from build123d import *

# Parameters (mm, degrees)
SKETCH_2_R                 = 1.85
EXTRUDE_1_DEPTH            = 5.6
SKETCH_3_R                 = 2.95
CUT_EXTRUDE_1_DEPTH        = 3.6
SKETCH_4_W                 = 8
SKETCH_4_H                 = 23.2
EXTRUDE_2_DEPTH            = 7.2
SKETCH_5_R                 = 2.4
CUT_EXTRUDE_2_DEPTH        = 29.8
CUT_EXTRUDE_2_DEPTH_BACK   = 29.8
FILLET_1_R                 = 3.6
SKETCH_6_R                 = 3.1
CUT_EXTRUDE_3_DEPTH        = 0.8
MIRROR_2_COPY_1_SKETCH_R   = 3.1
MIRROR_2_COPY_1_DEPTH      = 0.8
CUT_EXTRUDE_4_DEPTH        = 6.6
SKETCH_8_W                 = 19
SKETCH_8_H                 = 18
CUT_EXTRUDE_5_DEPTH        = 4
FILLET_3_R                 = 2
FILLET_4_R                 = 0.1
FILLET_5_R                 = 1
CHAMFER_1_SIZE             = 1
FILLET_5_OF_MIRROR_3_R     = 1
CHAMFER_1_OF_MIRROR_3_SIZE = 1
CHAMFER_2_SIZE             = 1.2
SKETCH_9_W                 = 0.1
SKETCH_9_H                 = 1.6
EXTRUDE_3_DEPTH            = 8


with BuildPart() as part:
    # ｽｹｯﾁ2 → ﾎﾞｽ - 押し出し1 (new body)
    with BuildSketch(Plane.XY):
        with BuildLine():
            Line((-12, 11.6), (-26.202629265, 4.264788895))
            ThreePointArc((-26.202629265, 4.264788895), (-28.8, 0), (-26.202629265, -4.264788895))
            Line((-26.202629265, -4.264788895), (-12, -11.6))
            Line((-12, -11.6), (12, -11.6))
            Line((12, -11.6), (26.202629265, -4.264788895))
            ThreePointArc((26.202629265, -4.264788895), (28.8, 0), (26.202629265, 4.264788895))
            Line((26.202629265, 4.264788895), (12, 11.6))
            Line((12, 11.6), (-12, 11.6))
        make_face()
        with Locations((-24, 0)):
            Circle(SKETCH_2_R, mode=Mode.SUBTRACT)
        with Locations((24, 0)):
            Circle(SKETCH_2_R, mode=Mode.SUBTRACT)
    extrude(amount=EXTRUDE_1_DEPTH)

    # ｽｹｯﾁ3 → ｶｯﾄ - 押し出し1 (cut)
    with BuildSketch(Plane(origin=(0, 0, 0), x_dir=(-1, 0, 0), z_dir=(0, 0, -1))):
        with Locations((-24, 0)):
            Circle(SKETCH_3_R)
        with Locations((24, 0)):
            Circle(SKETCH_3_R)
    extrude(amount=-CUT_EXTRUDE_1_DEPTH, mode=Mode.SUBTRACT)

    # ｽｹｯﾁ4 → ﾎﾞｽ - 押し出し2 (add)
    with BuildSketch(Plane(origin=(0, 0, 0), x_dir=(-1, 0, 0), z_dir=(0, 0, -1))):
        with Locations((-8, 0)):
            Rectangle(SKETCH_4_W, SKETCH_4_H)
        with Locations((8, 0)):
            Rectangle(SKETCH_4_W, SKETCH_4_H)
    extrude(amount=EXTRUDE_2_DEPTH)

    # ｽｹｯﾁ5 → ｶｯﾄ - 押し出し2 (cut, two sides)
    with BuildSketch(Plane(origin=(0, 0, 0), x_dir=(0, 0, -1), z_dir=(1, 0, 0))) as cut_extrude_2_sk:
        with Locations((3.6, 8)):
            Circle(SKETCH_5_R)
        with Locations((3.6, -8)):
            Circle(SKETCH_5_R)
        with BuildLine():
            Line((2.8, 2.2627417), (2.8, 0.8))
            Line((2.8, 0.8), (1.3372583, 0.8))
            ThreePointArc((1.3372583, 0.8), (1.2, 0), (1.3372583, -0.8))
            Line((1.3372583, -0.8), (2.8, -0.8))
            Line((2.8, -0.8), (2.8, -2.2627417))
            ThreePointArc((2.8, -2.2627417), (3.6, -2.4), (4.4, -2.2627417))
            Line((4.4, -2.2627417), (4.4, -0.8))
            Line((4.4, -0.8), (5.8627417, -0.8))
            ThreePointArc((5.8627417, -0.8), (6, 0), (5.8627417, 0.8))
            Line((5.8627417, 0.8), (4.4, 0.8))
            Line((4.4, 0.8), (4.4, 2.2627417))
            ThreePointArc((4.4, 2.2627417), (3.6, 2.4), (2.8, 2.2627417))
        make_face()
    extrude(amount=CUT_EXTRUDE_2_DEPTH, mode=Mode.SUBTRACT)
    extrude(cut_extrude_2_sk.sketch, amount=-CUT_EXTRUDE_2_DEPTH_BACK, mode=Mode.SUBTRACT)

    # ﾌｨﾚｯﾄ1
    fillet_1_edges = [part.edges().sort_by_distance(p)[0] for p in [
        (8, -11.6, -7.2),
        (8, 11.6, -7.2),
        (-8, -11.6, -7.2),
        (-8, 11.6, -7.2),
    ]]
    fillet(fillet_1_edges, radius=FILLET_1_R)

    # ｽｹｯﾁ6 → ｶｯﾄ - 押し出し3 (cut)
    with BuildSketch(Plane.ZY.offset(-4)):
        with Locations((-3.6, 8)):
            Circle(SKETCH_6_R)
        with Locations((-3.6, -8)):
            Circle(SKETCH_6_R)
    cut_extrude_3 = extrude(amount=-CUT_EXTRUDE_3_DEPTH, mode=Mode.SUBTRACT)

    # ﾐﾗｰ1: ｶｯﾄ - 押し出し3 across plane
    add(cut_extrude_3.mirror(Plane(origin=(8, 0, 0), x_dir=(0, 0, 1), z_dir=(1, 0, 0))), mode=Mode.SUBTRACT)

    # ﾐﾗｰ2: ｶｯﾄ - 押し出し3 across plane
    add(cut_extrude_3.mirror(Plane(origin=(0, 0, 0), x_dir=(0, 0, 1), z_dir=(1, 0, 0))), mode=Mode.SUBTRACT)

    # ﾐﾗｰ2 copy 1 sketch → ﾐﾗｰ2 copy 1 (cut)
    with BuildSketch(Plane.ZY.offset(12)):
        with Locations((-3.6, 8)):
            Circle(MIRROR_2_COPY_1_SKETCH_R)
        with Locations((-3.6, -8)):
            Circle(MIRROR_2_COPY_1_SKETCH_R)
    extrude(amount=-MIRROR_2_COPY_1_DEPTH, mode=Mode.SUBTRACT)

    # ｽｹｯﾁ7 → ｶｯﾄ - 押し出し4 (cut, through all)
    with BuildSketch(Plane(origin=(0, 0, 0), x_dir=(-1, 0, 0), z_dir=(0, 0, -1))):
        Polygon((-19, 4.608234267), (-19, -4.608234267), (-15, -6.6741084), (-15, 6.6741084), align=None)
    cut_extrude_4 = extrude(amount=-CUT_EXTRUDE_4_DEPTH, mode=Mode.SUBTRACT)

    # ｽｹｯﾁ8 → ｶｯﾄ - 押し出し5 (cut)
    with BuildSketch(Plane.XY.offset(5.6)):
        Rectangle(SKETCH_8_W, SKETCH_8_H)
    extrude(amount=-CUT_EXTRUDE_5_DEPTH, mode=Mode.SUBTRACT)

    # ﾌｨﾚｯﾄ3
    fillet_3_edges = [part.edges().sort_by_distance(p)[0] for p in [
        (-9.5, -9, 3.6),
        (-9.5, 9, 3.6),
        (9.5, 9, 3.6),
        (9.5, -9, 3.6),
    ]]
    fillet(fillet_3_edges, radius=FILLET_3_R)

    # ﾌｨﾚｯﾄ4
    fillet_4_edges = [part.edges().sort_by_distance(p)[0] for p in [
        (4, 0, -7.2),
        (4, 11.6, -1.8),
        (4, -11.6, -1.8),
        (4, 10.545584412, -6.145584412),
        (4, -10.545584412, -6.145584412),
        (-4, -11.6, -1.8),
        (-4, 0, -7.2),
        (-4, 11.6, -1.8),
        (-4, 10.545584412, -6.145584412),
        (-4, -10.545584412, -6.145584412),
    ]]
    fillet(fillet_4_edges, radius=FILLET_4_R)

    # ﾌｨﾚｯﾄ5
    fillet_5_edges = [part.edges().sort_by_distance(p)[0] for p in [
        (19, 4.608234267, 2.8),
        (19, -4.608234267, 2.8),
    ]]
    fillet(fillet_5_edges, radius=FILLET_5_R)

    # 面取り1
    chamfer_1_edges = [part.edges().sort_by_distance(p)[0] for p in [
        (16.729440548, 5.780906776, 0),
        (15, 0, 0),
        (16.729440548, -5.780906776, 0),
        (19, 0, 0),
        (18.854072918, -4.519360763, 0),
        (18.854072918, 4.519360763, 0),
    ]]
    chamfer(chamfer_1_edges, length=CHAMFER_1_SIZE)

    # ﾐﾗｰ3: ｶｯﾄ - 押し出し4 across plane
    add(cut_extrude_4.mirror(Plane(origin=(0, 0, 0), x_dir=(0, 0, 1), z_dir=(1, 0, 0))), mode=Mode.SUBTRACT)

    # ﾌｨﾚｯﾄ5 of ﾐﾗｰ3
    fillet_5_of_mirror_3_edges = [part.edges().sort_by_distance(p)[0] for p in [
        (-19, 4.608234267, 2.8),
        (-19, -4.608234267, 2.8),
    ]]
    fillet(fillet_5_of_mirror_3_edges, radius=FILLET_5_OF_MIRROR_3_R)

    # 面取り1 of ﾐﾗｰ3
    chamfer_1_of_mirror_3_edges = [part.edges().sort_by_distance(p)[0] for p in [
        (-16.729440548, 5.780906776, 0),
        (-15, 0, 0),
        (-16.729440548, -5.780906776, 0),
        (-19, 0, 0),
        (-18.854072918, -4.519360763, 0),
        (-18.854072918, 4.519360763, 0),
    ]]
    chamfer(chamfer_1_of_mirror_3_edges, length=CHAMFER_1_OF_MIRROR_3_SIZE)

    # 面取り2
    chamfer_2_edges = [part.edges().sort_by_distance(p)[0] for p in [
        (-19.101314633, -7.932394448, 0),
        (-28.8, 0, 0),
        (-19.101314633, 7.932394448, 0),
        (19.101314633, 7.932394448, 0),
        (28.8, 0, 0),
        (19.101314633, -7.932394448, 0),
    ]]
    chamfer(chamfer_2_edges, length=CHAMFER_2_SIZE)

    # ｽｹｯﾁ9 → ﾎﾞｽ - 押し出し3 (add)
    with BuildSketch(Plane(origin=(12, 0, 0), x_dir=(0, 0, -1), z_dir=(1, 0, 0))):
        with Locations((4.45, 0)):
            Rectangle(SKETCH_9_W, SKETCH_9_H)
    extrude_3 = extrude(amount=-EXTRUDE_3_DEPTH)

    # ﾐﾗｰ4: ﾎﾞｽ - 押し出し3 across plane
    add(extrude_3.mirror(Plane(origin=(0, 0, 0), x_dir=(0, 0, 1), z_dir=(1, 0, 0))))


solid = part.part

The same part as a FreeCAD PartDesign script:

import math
import FreeCAD as App
import Part
import Sketcher

V = App.Vector


def edges_at(feature, points):
    """Names of the edges that pass closest to the given points."""
    edges = feature.Shape.Edges
    near = lambda p: min(range(len(edges)), key=lambda i: edges[i].distToShape(Part.Vertex(*p))[0])
    return sorted({f"Edge{near(p) + 1}" for p in points})

doc = App.newDocument("Part")
body = doc.addObject("PartDesign::Body", "Body")

sketch1 = body.newObject("Sketcher::SketchObject", "Sketch")
sketch1.AttachmentSupport = (doc.getObject("XY_Plane"), [""])
sketch1.MapMode = "FlatFace"
sketch1.addGeometry([
    Part.LineSegment(V(-12, 11.6, 0), V(-26.2, 4.3, 0)),
    Part.ArcOfCircle(Part.Circle(V(-24, 0, 0), V(0, 0, 1), 4.8), math.radians(117), math.radians(243)),
    Part.LineSegment(V(-26.2, -4.3, 0), V(-12, -11.6, 0)),
    Part.LineSegment(V(-12, -11.6, 0), V(12, -11.6, 0)),
    Part.LineSegment(V(12, -11.6, 0), V(26.2, -4.3, 0)),
    Part.ArcOfCircle(Part.Circle(V(24, 0, 0), V(0, 0, 1), 4.8), math.radians(-63), math.radians(63)),
    Part.LineSegment(V(26.2, 4.3, 0), V(12, 11.6, 0)),
    Part.LineSegment(V(12, 11.6, 0), V(-12, 11.6, 0)),
    Part.Circle(V(-24, 0, 0), V(0, 0, 1), 1.9),
    Part.Circle(V(24, 0, 0), V(0, 0, 1), 1.9),
], False)
sketch1.addConstraint([
    Sketcher.Constraint("Tangent", 0, 2, 1, 1),
    Sketcher.Constraint("Tangent", 1, 2, 2, 1),
    Sketcher.Constraint("Coincident", 2, 2, 3, 1),
    Sketcher.Constraint("Coincident", 3, 2, 4, 1),
    Sketcher.Constraint("Tangent", 4, 2, 5, 1),
    Sketcher.Constraint("Tangent", 5, 2, 6, 1),
    Sketcher.Constraint("Coincident", 6, 2, 7, 1),
    Sketcher.Constraint("Coincident", 7, 2, 0, 1),
    Sketcher.Constraint("Horizontal", 3),
    Sketcher.Constraint("Horizontal", 7),
    Sketcher.Constraint("Coincident", 8, 3, 1, 3),
    Sketcher.Constraint("Coincident", 9, 3, 5, 3),
    Sketcher.Constraint("Equal", 1, 5),
    Sketcher.Constraint("Equal", 8, 9),
    Sketcher.Constraint("Symmetric", 1, 3, 5, 3, -1, 1),
    Sketcher.Constraint("Symmetric", 2, 2, 6, 2, -1, 1),
    Sketcher.Constraint("Symmetric", 1, 2, 4, 2, -2),
    Sketcher.Constraint("Parallel", 0, 4),
    Sketcher.Constraint("Diameter", 8, 3.7),
    Sketcher.Constraint("Radius", 1, 4.8),
    Sketcher.Constraint("DistanceX", 3, 1, 3, 2, 24.0),
    Sketcher.Constraint("DistanceX", 1, 3, -1, 1, 24.0),
    Sketcher.Constraint("DistanceY", 2, 2, -1, 1, 11.6),
])
pad1 = body.newObject("PartDesign::Pad", "Pad")
pad1.Profile = sketch1
pad1.Length = 5.6

sketch2 = body.newObject("Sketcher::SketchObject", "Sketch001")
sketch2.AttachmentSupport = (doc.getObject("XY_Plane"), [""])
sketch2.MapMode = "FlatFace"
sketch2.addGeometry([
    Part.Circle(V(24, 0, 0), V(0, 0, 1), 3),
    Part.Circle(V(-24, 0, 0), V(0, 0, 1), 3),
], False)
sketch2.addConstraint([
    Sketcher.Constraint("Equal", 0, 1),
    Sketcher.Constraint("Symmetric", 0, 3, 1, 3, -1, 1),
    Sketcher.Constraint("PointOnObject", 0, 3, -1),
    Sketcher.Constraint("Diameter", 0, 5.9),
    Sketcher.Constraint("DistanceX", -1, 1, 0, 3, 24.0),
])
pocket1 = body.newObject("PartDesign::Pocket", "Pocket")
pocket1.Profile = sketch2
pocket1.Length = 3.6
pocket1.Reversed = True

sketch3 = body.newObject("Sketcher::SketchObject", "Sketch002")
sketch3.AttachmentSupport = (doc.getObject("XY_Plane"), [""])
sketch3.MapMode = "FlatFace"
sketch3.addGeometry([
    Part.LineSegment(V(12, 12, 0), V(12, -12, 0)),
    Part.LineSegment(V(12, -12, 0), V(4, -12, 0)),
    Part.LineSegment(V(4, -12, 0), V(4, 12, 0)),
    Part.LineSegment(V(4, 12, 0), V(12, 12, 0)),
    Part.LineSegment(V(-4, 12, 0), V(-4, -12, 0)),
    Part.LineSegment(V(-4, -12, 0), V(-12, -12, 0)),
    Part.LineSegment(V(-12, -12, 0), V(-12, 12, 0)),
    Part.LineSegment(V(-12, 12, 0), V(-4, 12, 0)),
], False)
sketch3.addConstraint([
    Sketcher.Constraint("Coincident", 0, 2, 1, 1),
    Sketcher.Constraint("Coincident", 1, 2, 2, 1),
    Sketcher.Constraint("Coincident", 2, 2, 3, 1),
    Sketcher.Constraint("Coincident", 3, 2, 0, 1),
    Sketcher.Constraint("Coincident", 4, 2, 5, 1),
    Sketcher.Constraint("Coincident", 5, 2, 6, 1),
    Sketcher.Constraint("Coincident", 6, 2, 7, 1),
    Sketcher.Constraint("Coincident", 7, 2, 4, 1),
    Sketcher.Constraint("Vertical", 0),
    Sketcher.Constraint("Horizontal", 1),
    Sketcher.Constraint("Vertical", 2),
    Sketcher.Constraint("Horizontal", 3),
    Sketcher.Constraint("Vertical", 4),
    Sketcher.Constraint("Horizontal", 5),
    Sketcher.Constraint("Vertical", 6),
    Sketcher.Constraint("Horizontal", 7),
    Sketcher.Constraint("Symmetric", 2, 2, 4, 2, -1, 1),
    Sketcher.Constraint("Symmetric", 0, 2, 6, 2, -1, 1),
    Sketcher.Constraint("Horizontal", 1, 2, 4, 2),
    Sketcher.Constraint("DistanceX", 1, 2, 1, 1, 8.0),
    Sketcher.Constraint("DistanceY", 0, 2, 0, 1, 23.2),
    Sketcher.Constraint("DistanceX", -1, 1, 0, 2, 12.0),
])
pad2 = body.newObject("PartDesign::Pad", "Pad001")
pad2.Profile = sketch3
pad2.Length = 7.2
pad2.Reversed = True

sketch4 = body.newObject("Sketcher::SketchObject", "Sketch003")
sketch4.AttachmentSupport = (doc.getObject("YZ_Plane"), [""])
sketch4.MapMode = "FlatFace"
sketch4.addGeometry([
    Part.Circle(V(8, -3.6, 0), V(0, 0, 1), 2.4),
    Part.Circle(V(-8, -3.6, 0), V(0, 0, 1), 2.4),
    Part.LineSegment(V(2.3, -2.8, 0), V(0.8, -2.8, 0)),
    Part.LineSegment(V(0.8, -2.8, 0), V(0.8, -1.3, 0)),
    Part.ArcOfCircle(Part.Circle(V(0, -3.6, 0), V(0, 0, 1), 2.4), math.radians(71), math.radians(109)),
    Part.LineSegment(V(-0.8, -1.3, 0), V(-0.8, -2.8, 0)),
    Part.LineSegment(V(-0.8, -2.8, 0), V(-2.3, -2.8, 0)),
    Part.ArcOfCircle(Part.Circle(V(0, -3.6, 0), V(0, 0, 1), 2.4), math.radians(161), math.radians(199)),
    Part.LineSegment(V(-2.3, -4.4, 0), V(-0.8, -4.4, 0)),
    Part.LineSegment(V(-0.8, -4.4, 0), V(-0.8, -5.9, 0)),
    Part.ArcOfCircle(Part.Circle(V(0, -3.6, 0), V(0, 0, 1), 2.4), math.radians(-109), math.radians(-71)),
    Part.LineSegment(V(0.8, -5.9, 0), V(0.8, -4.4, 0)),
    Part.LineSegment(V(0.8, -4.4, 0), V(2.3, -4.4, 0)),
    Part.ArcOfCircle(Part.Circle(V(0, -3.6, 0), V(0, 0, 1), 2.4), math.radians(-19), math.radians(19)),
], False)
sketch4.addConstraint([
    Sketcher.Constraint("Coincident", 2, 2, 3, 1),
    Sketcher.Constraint("Coincident", 3, 2, 4, 1),
    Sketcher.Constraint("Coincident", 4, 2, 5, 1),
    Sketcher.Constraint("Coincident", 5, 2, 6, 1),
    Sketcher.Constraint("Coincident", 6, 2, 7, 1),
    Sketcher.Constraint("Coincident", 7, 2, 8, 1),
    Sketcher.Constraint("Coincident", 8, 2, 9, 1),
    Sketcher.Constraint("Coincident", 9, 2, 10, 1),
    Sketcher.Constraint("Coincident", 10, 2, 11, 1),
    Sketcher.Constraint("Coincident", 11, 2, 12, 1),
    Sketcher.Constraint("Coincident", 12, 2, 13, 1),
    Sketcher.Constraint("Coincident", 13, 2, 2, 1),
    Sketcher.Constraint("Horizontal", 2),
    Sketcher.Constraint("Vertical", 3),
    Sketcher.Constraint("Vertical", 5),
    Sketcher.Constraint("Horizontal", 6),
    Sketcher.Constraint("Horizontal", 8),
    Sketcher.Constraint("Vertical", 9),
    Sketcher.Constraint("Vertical", 11),
    Sketcher.Constraint("Horizontal", 12),
    Sketcher.Constraint("Coincident", 7, 3, 4, 3),
    Sketcher.Constraint("Coincident", 10, 3, 4, 3),
    Sketcher.Constraint("Coincident", 13, 3, 4, 3),
    Sketcher.Constraint("Equal", 0, 1),
    Sketcher.Constraint("Equal", 1, 4),
    Sketcher.Constraint("Equal", 4, 7),
    Sketcher.Constraint("Equal", 7, 10),
    Sketcher.Constraint("Equal", 10, 13),
    Sketcher.Constraint("Symmetric", 0, 3, 1, 3, -2),
    Sketcher.Constraint("Symmetric", 3, 2, 4, 2, -2),
    Sketcher.Constraint("Symmetric", 8, 2, 11, 2, -2),
    Sketcher.Constraint("Horizontal", 1, 3, 4, 3),
    Sketcher.Constraint("Horizontal", 2, 2, 5, 2),
    Sketcher.Constraint("Vertical", 6, 2, 7, 2),
    Sketcher.Constraint("Vertical", 5, 2, 8, 2),
    Sketcher.Constraint("Equal", 12, 3),
    Sketcher.Constraint("Diameter", 0, 4.8),
    Sketcher.Constraint("DistanceX", -1, 1, 0, 3, 8.0),
    Sketcher.Constraint("DistanceY", 0, 3, -1, 1, 3.6),
    Sketcher.Constraint("DistanceX", -1, 1, 2, 2, 0.8),
])
pocket2 = body.newObject("PartDesign::Pocket", "Pocket001")
pocket2.Profile = sketch4
pocket2.Type = "ThroughAll"
pocket2.Midplane = True
doc.recompute()

fillet = body.newObject("PartDesign::Fillet", "Fillet")
fillet.Base = (pocket2, edges_at(pocket2, [
    (8, -11.6, -7.2),
    (8, 11.6, -7.2),
    (-8, -11.6, -7.2),
    (-8, 11.6, -7.2),
]))
fillet.Radius = 3.6

sketch5 = body.newObject("Sketcher::SketchObject", "Sketch004")
sketch5.AttachmentSupport = (doc.getObject("YZ_Plane"), [""])
sketch5.MapMode = "FlatFace"
sketch5.AttachmentOffset = App.Placement(V(0, 0, 4), App.Rotation())
sketch5.addGeometry([
    Part.Circle(V(8, -3.6, 0), V(0, 0, 1), 3.1),
    Part.Circle(V(-8, -3.6, 0), V(0, 0, 1), 3.1),
], False)
sketch5.addConstraint([
    Sketcher.Constraint("Equal", 0, 1),
    Sketcher.Constraint("Symmetric", 0, 3, 1, 3, -2),
    Sketcher.Constraint("Diameter", 0, 6.2),
    Sketcher.Constraint("DistanceX", -1, 1, 0, 3, 8.0),
    Sketcher.Constraint("DistanceY", 0, 3, -1, 1, 3.6),
])
pocket3 = body.newObject("PartDesign::Pocket", "Pocket002")
pocket3.Profile = sketch5
pocket3.Length = 0.8
pocket3.Reversed = True
doc.recompute()

datumplane = body.newObject("PartDesign::Plane", "DatumPlane")
datumplane.AttachmentSupport = (doc.getObject("YZ_Plane"), [""])
datumplane.MapMode = "FlatFace"
datumplane.AttachmentOffset = App.Placement(V(0, 0, 8), App.Rotation())
mirrored = body.newObject("PartDesign::Mirrored", "Mirrored")
mirrored.Originals = [pocket3]
mirrored.MirrorPlane = (datumplane, [""])
body.Tip = mirrored
doc.recompute()

mirrored2 = body.newObject("PartDesign::Mirrored", "Mirrored001")
mirrored2.Originals = [pocket3]
mirrored2.MirrorPlane = (doc.getObject("YZ_Plane"), [""])
body.Tip = mirrored2

sketch6 = body.newObject("Sketcher::SketchObject", "Sketch005")
sketch6.AttachmentSupport = (doc.getObject("YZ_Plane"), [""])
sketch6.MapMode = "FlatFace"
sketch6.AttachmentOffset = App.Placement(V(0, 0, -12), App.Rotation())
sketch6.addGeometry([
    Part.Circle(V(8, -3.6, 0), V(0, 0, 1), 3.1),
    Part.Circle(V(-8, -3.6, 0), V(0, 0, 1), 3.1),
], False)
sketch6.addConstraint([
    Sketcher.Constraint("Equal", 0, 1),
    Sketcher.Constraint("Symmetric", 0, 3, 1, 3, -2),
    Sketcher.Constraint("Diameter", 0, 6.2),
    Sketcher.Constraint("DistanceX", -1, 1, 0, 3, 8.0),
    Sketcher.Constraint("DistanceY", 0, 3, -1, 1, 3.6),
])
pocket4 = body.newObject("PartDesign::Pocket", "Pocket003")
pocket4.Profile = sketch6
pocket4.Length = 0.8
pocket4.Reversed = True

sketch7 = body.newObject("Sketcher::SketchObject", "Sketch006")
sketch7.AttachmentSupport = (doc.getObject("XY_Plane"), [""])
sketch7.MapMode = "FlatFace"
sketch7.addGeometry([
    Part.LineSegment(V(19, 4.6, 0), V(19, -4.6, 0)),
    Part.LineSegment(V(19, -4.6, 0), V(15, -6.7, 0)),
    Part.LineSegment(V(15, -6.7, 0), V(15, 6.7, 0)),
    Part.LineSegment(V(15, 6.7, 0), V(19, 4.6, 0)),
], False)
sketch7.addConstraint([
    Sketcher.Constraint("Coincident", 0, 2, 1, 1),
    Sketcher.Constraint("Coincident", 1, 2, 2, 1),
    Sketcher.Constraint("Coincident", 2, 2, 3, 1),
    Sketcher.Constraint("Coincident", 3, 2, 0, 1),
    Sketcher.Constraint("Vertical", 0),
    Sketcher.Constraint("Vertical", 2),
    Sketcher.Constraint("Equal", 1, 3),
    Sketcher.Constraint("DistanceX", -1, 1, 0, 2, 19.0),
    Sketcher.Constraint("DistanceX", -1, 1, 1, 2, 15.0),
    Sketcher.Constraint("DistanceY", 0, 2, 0, 1, 9.216469),
    Sketcher.Constraint("Distance", 1, 4.501981),
    Sketcher.Constraint("DistanceY", 1, 2, -1, 1, 6.674108),
])
pocket5 = body.newObject("PartDesign::Pocket", "Pocket004")
pocket5.Profile = sketch7
pocket5.Type = "ThroughAll"
pocket5.Reversed = True

sketch8 = body.newObject("Sketcher::SketchObject", "Sketch007")
sketch8.AttachmentSupport = (doc.getObject("XY_Plane"), [""])
sketch8.MapMode = "FlatFace"
sketch8.AttachmentOffset = App.Placement(V(0, 0, 5.6), App.Rotation())
sketch8.addGeometry([
    Part.LineSegment(V(-10, 9, 0), V(-10, -9, 0)),
    Part.LineSegment(V(-10, -9, 0), V(10, -9, 0)),
    Part.LineSegment(V(10, -9, 0), V(10, 9, 0)),
    Part.LineSegment(V(10, 9, 0), V(-10, 9, 0)),
], False)
sketch8.addConstraint([
    Sketcher.Constraint("Coincident", 0, 2, 1, 1),
    Sketcher.Constraint("Coincident", 1, 2, 2, 1),
    Sketcher.Constraint("Coincident", 2, 2, 3, 1),
    Sketcher.Constraint("Coincident", 3, 2, 0, 1),
    Sketcher.Constraint("Vertical", 0),
    Sketcher.Constraint("Horizontal", 1),
    Sketcher.Constraint("Vertical", 2),
    Sketcher.Constraint("Horizontal", 3),
    Sketcher.Constraint("Symmetric", 0, 2, 2, 2, -1, 1),
    Sketcher.Constraint("DistanceX", 1, 1, 1, 2, 19.0),
    Sketcher.Constraint("DistanceY", 0, 2, 0, 1, 18.0),
])
pocket6 = body.newObject("PartDesign::Pocket", "Pocket005")
pocket6.Profile = sketch8
pocket6.Length = 4
doc.recompute()

fillet2 = body.newObject("PartDesign::Fillet", "Fillet001")
fillet2.Base = (pocket6, edges_at(pocket6, [
    (-9.5, -9, 3.6),
    (-9.5, 9, 3.6),
    (9.5, 9, 3.6),
    (9.5, -9, 3.6),
]))
fillet2.Radius = 2
doc.recompute()

fillet3 = body.newObject("PartDesign::Fillet", "Fillet002")
fillet3.Base = (fillet2, edges_at(fillet2, [
    (4, 0, -7.2),
    (4, 11.6, -1.8),
    (4, -11.6, -1.8),
    (4, 10.546, -6.146),
    (4, -10.546, -6.146),
    (-4, -11.6, -1.8),
    (-4, 0, -7.2),
    (-4, 11.6, -1.8),
    (-4, 10.546, -6.146),
    (-4, -10.546, -6.146),
]))
fillet3.Radius = 0.1
doc.recompute()

fillet4 = body.newObject("PartDesign::Fillet", "Fillet003")
fillet4.Base = (fillet3, edges_at(fillet3, [(19, 4.608, 2.8), (19, -4.608, 2.8)]))
fillet4.Radius = 1
doc.recompute()

chamfer = body.newObject("PartDesign::Chamfer", "Chamfer")
chamfer.Base = (fillet4, edges_at(fillet4, [
    (16.729, 5.781, 0),
    (15, 0, 0),
    (16.729, -5.781, 0),
    (19, 0, 0),
    (18.854, -4.519, 0),
    (18.854, 4.519, 0),
]))
chamfer.Size = 1
doc.recompute()

mirrored3 = body.newObject("PartDesign::Mirrored", "Mirrored002")
mirrored3.Originals = [pocket5]
mirrored3.MirrorPlane = (doc.getObject("YZ_Plane"), [""])
body.Tip = mirrored3
doc.recompute()

fillet5 = body.newObject("PartDesign::Fillet", "Fillet004")
fillet5.Base = (mirrored3, edges_at(mirrored3, [(-19, 4.608, 2.8), (-19, -4.608, 2.8)]))
fillet5.Radius = 1
doc.recompute()

chamfer2 = body.newObject("PartDesign::Chamfer", "Chamfer001")
chamfer2.Base = (fillet5, edges_at(fillet5, [
    (-16.729, 5.781, 0),
    (-15, 0, 0),
    (-16.729, -5.781, 0),
    (-19, 0, 0),
    (-18.854, -4.519, 0),
    (-18.854, 4.519, 0),
]))
chamfer2.Size = 1
doc.recompute()

chamfer3 = body.newObject("PartDesign::Chamfer", "Chamfer002")
chamfer3.Base = (chamfer2, edges_at(chamfer2, [
    (-19.101, -7.932, 0),
    (-28.8, 0, 0),
    (-19.101, 7.932, 0),
    (19.101, 7.932, 0),
    (28.8, 0, 0),
    (19.101, -7.932, 0),
]))
chamfer3.Size = 1.2

sketch9 = body.newObject("Sketcher::SketchObject", "Sketch008")
sketch9.AttachmentSupport = (doc.getObject("YZ_Plane"), [""])
sketch9.MapMode = "FlatFace"
sketch9.AttachmentOffset = App.Placement(V(0, 0, 12), App.Rotation())
sketch9.addGeometry([
    Part.LineSegment(V(0.8, -4.4, 0), V(-0.8, -4.4, 0)),
    Part.LineSegment(V(-0.8, -4.4, 0), V(-0.8, -4.5, 0)),
    Part.LineSegment(V(-0.8, -4.5, 0), V(0.8, -4.5, 0)),
    Part.LineSegment(V(0.8, -4.5, 0), V(0.8, -4.4, 0)),
], False)
sketch9.addConstraint([
    Sketcher.Constraint("Coincident", 0, 2, 1, 1),
    Sketcher.Constraint("Coincident", 1, 2, 2, 1),
    Sketcher.Constraint("Coincident", 2, 2, 3, 1),
    Sketcher.Constraint("Coincident", 3, 2, 0, 1),
    Sketcher.Constraint("Horizontal", 0),
    Sketcher.Constraint("Vertical", 1),
    Sketcher.Constraint("Horizontal", 2),
    Sketcher.Constraint("Vertical", 3),
    Sketcher.Constraint("DistanceX", 0, 2, 0, 1, 1.6),
    Sketcher.Constraint("DistanceY", 1, 2, 1, 1, 0.1),
    Sketcher.Constraint("DistanceX", 0, 2, -1, 1, 0.8),
    Sketcher.Constraint("DistanceY", 0, 2, -1, 1, 4.4),
])
pad3 = body.newObject("PartDesign::Pad", "Pad002")
pad3.Profile = sketch9
pad3.Length = 8
pad3.Reversed = True
doc.recompute()

mirrored4 = body.newObject("PartDesign::Mirrored", "Mirrored003")
mirrored4.Originals = [pad3]
mirrored4.MirrorPlane = (doc.getObject("YZ_Plane"), [""])
body.Tip = mirrored4

doc.recompute()
